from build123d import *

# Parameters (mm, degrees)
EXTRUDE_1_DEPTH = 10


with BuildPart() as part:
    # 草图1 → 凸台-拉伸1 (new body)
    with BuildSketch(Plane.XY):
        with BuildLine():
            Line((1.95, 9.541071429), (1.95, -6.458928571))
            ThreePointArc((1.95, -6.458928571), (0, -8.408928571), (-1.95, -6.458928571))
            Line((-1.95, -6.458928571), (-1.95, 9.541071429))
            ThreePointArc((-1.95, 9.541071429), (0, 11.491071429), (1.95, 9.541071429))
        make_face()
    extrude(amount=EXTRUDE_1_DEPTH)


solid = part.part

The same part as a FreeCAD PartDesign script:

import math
import FreeCAD as App
import Part
import Sketcher
Q = App.Units.Quantity

doc = App.newDocument("Part")
body = doc.addObject("PartDesign::Body", "Body")

# Sketch on XY plane
sketch1 = body.newObject("Sketcher::SketchObject", "Sketch")
sketch1.AttachmentSupport = (doc.getObject("XY_Plane"), [""])
sketch1.MapMode = "FlatFace"
sketch1.addGeometry([
    Part.LineSegment(App.Vector(1.95, -6.458929, 0), App.Vector(1.95, 9.541071, 0)),
    Part.ArcOfCircle(Part.Circle(App.Vector(0, 9.541071, 0), App.Vector(0, 0, 1), 1.95), math.radians(0), math.radians(180)),
    Part.LineSegment(App.Vector(-1.95, 9.541071, 0), App.Vector(-1.95, -6.458929, 0)),
    Part.ArcOfCircle(Part.Circle(App.Vector(0, -6.458929, 0), App.Vector(0, 0, 1), 1.95), math.radians(180), math.radians(360)),
], False)
sketch1.addConstraint([
    Sketcher.Constraint("Tangent", 0, 2, 1, 1),
    Sketcher.Constraint("Tangent", 1, 2, 2, 1),
    Sketcher.Constraint("Tangent", 2, 2, 3, 1),
    Sketcher.Constraint("Tangent", 3, 2, 0, 1),
    Sketcher.Constraint("Vertical", 0),
    Sketcher.Constraint("Vertical", 2),
    Sketcher.Constraint("PointOnObject", 1, 3, -2),
    Sketcher.Constraint("DistanceY", 0, 1, 0, 2, Q("16 mm")),
    Sketcher.Constraint("Radius", 1, Q("1.95 mm")),
    Sketcher.Constraint("DistanceY", -1, 1, 1, 3, Q("9.541071 mm")),
])
pad1 = body.newObject("PartDesign::Pad", "Pad")
pad1.Profile = sketch1
pad1.Length = 10

doc.recompute()
